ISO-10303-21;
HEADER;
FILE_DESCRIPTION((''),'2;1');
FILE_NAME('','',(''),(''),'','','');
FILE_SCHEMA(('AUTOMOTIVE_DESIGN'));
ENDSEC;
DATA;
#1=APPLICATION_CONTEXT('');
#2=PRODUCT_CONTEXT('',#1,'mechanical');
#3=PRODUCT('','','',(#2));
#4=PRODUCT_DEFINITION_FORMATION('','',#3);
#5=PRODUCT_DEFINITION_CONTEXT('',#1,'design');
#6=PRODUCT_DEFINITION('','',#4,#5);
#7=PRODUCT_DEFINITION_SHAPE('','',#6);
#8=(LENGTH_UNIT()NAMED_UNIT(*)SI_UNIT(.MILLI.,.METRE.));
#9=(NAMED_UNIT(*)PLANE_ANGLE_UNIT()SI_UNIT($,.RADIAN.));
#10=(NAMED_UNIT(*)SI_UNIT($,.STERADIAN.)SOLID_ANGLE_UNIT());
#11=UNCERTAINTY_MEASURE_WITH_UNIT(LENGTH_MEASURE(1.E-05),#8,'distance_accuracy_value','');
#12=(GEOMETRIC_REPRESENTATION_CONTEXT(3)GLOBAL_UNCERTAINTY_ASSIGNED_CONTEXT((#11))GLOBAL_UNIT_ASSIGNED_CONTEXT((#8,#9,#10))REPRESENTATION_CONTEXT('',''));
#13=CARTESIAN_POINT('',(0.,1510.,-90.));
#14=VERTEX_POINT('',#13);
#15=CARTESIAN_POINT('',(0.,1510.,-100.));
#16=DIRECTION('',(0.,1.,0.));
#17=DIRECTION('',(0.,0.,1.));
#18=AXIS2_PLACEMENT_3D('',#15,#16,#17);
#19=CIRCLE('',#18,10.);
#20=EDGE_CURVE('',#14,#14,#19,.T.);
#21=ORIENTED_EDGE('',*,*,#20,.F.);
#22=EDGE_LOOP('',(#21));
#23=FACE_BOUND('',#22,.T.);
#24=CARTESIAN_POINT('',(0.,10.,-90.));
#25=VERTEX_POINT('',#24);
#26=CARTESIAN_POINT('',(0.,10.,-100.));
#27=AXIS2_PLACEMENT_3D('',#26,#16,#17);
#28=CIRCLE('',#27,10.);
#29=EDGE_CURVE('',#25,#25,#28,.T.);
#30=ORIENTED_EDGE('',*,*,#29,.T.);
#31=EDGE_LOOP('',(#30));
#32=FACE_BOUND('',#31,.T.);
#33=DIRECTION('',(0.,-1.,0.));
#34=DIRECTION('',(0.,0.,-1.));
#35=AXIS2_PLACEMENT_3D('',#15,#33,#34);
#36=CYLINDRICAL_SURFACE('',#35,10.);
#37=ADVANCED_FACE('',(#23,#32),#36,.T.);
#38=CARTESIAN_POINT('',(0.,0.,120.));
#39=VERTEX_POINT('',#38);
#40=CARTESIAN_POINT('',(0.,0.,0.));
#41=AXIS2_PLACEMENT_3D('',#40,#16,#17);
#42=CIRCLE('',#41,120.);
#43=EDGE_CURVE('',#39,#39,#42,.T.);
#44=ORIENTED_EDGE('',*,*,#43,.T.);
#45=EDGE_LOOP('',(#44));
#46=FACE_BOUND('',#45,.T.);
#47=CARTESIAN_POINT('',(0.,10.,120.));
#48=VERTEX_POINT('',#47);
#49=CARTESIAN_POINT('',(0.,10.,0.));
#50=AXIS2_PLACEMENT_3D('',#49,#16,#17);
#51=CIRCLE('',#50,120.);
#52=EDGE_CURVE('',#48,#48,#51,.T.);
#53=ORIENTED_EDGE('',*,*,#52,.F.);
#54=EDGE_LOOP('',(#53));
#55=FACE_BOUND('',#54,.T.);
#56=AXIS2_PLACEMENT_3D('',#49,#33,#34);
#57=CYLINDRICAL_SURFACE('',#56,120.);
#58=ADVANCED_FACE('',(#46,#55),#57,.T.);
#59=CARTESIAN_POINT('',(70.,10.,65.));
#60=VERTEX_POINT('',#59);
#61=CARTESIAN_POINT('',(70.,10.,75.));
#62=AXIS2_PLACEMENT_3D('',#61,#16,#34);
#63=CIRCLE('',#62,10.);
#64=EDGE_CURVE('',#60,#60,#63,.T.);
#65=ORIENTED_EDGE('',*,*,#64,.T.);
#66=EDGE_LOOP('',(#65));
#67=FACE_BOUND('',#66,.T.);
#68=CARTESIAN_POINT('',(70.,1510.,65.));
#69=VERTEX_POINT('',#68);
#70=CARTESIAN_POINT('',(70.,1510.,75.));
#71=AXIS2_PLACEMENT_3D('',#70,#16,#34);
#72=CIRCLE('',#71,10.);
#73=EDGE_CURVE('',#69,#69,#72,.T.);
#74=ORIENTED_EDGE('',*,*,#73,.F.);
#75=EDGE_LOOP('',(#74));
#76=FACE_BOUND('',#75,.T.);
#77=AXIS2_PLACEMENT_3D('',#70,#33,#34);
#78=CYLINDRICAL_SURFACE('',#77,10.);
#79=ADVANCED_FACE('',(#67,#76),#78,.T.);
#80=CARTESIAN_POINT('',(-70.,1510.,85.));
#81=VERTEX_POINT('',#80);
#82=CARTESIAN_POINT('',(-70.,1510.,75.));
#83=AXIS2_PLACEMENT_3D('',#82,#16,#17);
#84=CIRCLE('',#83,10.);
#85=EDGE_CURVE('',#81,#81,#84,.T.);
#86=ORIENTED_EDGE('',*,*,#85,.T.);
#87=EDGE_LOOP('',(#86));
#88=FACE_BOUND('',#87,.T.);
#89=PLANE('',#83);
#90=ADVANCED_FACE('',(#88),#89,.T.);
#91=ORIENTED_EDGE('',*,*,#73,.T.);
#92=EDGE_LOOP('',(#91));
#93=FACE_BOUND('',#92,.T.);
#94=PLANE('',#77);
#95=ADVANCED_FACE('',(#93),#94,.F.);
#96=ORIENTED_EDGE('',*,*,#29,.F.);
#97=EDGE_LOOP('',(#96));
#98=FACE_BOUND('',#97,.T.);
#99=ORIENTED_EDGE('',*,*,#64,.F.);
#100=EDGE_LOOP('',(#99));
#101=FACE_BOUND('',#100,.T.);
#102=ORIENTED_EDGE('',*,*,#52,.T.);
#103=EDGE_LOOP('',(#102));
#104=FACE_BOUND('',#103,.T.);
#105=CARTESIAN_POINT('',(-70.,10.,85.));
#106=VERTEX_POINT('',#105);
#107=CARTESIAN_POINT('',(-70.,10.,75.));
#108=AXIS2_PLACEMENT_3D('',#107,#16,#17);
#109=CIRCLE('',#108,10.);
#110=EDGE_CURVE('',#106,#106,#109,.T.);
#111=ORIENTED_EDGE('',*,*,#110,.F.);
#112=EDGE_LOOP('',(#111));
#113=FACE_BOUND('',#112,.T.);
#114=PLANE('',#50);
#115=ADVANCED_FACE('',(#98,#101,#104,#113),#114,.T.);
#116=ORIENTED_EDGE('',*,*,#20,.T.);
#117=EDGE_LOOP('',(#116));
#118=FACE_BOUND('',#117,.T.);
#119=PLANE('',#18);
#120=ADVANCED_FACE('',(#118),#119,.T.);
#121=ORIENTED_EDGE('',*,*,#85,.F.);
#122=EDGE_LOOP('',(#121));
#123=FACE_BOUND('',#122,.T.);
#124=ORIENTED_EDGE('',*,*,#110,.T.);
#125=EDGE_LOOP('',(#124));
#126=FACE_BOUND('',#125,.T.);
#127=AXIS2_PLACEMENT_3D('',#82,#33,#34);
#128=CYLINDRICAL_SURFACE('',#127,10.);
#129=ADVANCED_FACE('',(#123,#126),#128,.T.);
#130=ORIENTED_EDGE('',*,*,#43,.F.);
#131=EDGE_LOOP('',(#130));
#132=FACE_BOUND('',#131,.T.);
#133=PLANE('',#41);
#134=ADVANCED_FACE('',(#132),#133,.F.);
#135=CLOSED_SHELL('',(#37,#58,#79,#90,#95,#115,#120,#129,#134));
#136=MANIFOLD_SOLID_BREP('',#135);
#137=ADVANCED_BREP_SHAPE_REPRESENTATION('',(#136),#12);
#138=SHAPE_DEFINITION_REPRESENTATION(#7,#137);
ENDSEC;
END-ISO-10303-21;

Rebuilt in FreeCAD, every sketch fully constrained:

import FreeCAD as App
import Part
import Sketcher
Q = App.Units.Quantity

doc = App.newDocument("Part")
body = doc.addObject("PartDesign::Body", "Body")

sketch1 = doc.addObject("Sketcher::SketchObject", "Sketch")
body.addObject(sketch1)
sketch1.AttachmentSupport = (doc.XZ_Plane, [""])
sketch1.MapMode = "FlatFace"
sketch1.addGeometry(Part.Circle(App.Vector(0, 0, 0), App.Vector(0, 0, 1), 120), False)
sketch1.addConstraint([
    Sketcher.Constraint("Coincident", 0, 3, -1, 1),
    Sketcher.Constraint("Diameter", 0, Q("240 mm")),
])
pad1 = doc.addObject("PartDesign::Pad", "Pad")
body.addObject(pad1)
pad1.Profile = sketch1
pad1.Length = 10
pad1.Reversed = True

sketch2 = doc.addObject("Sketcher::SketchObject", "Sketch001")
body.addObject(sketch2)
sketch2.AttachmentSupport = (doc.XZ_Plane, [""])
sketch2.MapMode = "FlatFace"
sketch2.AttachmentOffset = App.Placement(App.Vector(0, 0, -10), App.Rotation())
sketch2.addGeometry([
    Part.Circle(App.Vector(0, -100, 0), App.Vector(0, 0, 1), 10),
    Part.Circle(App.Vector(-70, 75, 0), App.Vector(0, 0, 1), 10),
    Part.Circle(App.Vector(70, 75, 0), App.Vector(0, 0, 1), 10),
], False)
sketch2.addConstraint([
    Sketcher.Constraint("Equal", 0, 1),
    Sketcher.Constraint("Equal", 1, 2),
    Sketcher.Constraint("Symmetric", 1, 3, 2, 3, -2),
    Sketcher.Constraint("PointOnObject", 0, 3, -2),
    Sketcher.Constraint("Diameter", 0, Q("20 mm")),
    Sketcher.Constraint("DistanceY", 0, 3, -1, 1, Q("100 mm")),
    Sketcher.Constraint("DistanceX", 1, 3, -1, 1, Q("70 mm")),
    Sketcher.Constraint("DistanceY", -1, 1, 1, 3, Q("75 mm")),
])
pad2 = doc.addObject("PartDesign::Pad", "Pad001")
body.addObject(pad2)
pad2.Profile = sketch2
pad2.Length = 1500
pad2.Reversed = True

doc.recompute()
